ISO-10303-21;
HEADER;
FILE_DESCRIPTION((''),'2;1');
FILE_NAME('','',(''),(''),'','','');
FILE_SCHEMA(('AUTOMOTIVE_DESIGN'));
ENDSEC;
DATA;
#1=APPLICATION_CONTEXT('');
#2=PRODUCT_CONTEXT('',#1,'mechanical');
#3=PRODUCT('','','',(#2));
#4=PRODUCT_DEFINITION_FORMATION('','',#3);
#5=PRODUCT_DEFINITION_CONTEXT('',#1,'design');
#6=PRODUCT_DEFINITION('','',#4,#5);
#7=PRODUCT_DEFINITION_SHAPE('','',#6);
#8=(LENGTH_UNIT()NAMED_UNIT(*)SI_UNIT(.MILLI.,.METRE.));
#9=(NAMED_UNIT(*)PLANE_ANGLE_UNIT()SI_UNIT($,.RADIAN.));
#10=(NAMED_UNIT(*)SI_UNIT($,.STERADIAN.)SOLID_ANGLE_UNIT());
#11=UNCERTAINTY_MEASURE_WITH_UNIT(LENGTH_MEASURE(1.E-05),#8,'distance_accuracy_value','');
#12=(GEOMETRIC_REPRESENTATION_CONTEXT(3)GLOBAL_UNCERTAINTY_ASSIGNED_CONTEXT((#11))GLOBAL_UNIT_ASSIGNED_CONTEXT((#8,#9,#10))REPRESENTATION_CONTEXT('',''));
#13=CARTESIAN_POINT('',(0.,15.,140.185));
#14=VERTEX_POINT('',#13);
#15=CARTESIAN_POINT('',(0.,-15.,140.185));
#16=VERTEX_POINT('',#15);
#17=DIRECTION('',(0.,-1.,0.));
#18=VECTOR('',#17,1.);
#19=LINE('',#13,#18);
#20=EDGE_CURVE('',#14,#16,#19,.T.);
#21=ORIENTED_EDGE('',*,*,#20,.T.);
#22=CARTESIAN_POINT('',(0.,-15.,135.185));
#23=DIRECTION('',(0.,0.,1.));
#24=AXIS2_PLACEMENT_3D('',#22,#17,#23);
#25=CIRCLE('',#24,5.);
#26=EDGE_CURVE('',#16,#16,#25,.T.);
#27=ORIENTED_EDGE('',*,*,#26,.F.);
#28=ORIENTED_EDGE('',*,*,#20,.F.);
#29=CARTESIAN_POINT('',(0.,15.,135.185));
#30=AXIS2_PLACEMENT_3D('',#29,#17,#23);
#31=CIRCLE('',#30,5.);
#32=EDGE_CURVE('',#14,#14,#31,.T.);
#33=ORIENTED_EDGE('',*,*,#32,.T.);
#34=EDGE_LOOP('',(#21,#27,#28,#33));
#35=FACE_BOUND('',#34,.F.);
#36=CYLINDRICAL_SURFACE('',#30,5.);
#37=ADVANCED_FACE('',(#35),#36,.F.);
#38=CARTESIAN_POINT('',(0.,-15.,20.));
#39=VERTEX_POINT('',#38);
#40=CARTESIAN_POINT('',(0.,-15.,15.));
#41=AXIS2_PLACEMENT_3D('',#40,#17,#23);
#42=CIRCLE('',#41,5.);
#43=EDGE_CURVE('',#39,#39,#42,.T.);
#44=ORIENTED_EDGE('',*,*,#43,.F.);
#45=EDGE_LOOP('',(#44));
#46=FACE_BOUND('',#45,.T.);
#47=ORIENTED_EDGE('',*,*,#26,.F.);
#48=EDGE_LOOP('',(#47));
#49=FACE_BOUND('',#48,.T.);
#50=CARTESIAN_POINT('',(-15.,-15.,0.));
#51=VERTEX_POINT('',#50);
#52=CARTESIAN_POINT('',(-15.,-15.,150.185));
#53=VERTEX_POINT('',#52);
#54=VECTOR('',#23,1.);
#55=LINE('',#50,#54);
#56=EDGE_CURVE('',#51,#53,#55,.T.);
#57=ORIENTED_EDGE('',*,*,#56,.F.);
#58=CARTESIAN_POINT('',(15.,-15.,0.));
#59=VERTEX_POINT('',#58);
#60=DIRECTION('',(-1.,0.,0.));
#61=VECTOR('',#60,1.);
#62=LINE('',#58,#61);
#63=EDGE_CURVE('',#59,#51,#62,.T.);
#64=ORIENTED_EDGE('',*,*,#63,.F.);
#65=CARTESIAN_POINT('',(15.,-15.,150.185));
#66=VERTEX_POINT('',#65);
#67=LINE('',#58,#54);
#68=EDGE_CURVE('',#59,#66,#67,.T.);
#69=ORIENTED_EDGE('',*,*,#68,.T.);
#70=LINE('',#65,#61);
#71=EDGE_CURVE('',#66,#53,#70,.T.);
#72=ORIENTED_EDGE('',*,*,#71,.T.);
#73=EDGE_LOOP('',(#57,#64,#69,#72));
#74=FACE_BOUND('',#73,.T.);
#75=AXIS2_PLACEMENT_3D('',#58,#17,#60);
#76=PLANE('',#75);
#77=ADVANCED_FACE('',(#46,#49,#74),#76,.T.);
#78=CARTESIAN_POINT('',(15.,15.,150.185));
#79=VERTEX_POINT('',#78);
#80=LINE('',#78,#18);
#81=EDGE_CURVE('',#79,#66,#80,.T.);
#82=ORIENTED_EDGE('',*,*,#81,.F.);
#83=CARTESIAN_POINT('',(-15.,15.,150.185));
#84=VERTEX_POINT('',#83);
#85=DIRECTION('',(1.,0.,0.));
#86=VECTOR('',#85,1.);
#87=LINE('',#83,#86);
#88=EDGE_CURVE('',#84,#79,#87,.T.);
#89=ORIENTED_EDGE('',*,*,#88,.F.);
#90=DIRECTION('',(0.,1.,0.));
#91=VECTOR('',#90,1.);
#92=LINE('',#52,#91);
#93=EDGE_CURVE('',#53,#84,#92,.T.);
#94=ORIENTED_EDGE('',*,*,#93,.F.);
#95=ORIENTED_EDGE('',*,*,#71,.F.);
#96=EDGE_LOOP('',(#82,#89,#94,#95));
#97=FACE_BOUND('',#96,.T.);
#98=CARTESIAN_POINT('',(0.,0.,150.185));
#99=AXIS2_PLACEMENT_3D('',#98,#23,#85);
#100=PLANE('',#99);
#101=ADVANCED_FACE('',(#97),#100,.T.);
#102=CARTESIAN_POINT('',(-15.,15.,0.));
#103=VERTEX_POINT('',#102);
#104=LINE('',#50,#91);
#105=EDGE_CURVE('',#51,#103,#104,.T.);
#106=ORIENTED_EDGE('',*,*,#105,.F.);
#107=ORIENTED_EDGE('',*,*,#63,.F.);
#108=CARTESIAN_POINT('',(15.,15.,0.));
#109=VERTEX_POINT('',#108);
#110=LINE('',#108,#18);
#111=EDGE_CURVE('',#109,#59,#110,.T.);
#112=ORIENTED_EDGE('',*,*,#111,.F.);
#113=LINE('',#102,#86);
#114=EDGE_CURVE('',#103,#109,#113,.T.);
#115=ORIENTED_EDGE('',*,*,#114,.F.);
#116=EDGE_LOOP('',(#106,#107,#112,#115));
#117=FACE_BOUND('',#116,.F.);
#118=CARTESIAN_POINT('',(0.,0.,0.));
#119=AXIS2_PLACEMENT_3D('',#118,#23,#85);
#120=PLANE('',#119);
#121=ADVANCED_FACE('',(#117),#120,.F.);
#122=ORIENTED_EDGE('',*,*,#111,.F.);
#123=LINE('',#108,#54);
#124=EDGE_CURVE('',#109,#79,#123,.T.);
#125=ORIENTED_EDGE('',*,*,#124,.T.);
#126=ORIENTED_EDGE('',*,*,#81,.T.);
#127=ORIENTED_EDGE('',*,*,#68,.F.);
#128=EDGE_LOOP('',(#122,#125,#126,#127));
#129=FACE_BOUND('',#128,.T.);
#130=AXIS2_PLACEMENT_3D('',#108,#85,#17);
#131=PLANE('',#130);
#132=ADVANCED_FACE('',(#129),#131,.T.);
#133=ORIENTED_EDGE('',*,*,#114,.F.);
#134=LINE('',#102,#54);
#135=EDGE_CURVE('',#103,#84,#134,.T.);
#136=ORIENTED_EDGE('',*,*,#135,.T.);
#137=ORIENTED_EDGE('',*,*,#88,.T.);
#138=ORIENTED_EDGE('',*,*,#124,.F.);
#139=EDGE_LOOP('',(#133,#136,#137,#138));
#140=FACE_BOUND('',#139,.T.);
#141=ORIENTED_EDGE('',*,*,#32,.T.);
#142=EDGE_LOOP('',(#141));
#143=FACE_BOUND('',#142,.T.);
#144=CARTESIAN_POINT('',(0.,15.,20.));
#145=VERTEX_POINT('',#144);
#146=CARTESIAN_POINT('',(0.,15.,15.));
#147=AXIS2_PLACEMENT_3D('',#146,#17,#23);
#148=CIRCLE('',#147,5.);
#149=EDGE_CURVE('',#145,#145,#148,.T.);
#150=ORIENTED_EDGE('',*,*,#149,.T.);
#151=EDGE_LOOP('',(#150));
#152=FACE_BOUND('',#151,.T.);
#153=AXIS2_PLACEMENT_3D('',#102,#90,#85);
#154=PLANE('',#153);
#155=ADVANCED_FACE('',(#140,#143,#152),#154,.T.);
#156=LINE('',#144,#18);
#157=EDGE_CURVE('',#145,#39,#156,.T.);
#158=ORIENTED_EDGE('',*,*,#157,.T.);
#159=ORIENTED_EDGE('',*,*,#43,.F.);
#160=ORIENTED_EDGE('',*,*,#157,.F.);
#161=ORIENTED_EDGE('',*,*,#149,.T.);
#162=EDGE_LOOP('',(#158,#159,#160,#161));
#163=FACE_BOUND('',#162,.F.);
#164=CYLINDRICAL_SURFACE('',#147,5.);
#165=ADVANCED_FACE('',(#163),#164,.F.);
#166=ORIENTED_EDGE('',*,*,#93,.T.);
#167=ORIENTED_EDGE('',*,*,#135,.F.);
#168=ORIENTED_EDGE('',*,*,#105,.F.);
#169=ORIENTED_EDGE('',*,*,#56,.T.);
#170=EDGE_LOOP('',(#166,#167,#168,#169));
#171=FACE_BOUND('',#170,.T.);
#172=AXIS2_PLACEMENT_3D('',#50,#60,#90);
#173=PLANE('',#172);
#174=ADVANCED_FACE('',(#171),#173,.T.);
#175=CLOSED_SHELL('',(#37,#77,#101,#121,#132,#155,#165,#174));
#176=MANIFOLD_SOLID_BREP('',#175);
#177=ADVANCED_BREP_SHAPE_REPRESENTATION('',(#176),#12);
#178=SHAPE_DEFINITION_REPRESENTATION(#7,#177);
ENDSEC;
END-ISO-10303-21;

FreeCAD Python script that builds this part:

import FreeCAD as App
import Part
import Sketcher

V = App.Vector


def add_polygon(sketch, points):
    """Adds a closed chain of lines whose ends are joined by coincident constraints."""
    first, n = sketch.GeometryCount, len(points)
    for a, b in zip(points, points[1:] + points[:1]):
        sketch.addGeometry(Part.LineSegment(App.Vector(*a, 0), App.Vector(*b, 0)), False)
    for i in range(n):
        sketch.addConstraint(Sketcher.Constraint("Coincident", first + i, 2, first + (i + 1) % n, 1))

doc = App.newDocument("Part")
params = doc.addObject("Spreadsheet::Sheet", "Params")
for row, (alias, value) in enumerate([
    ("sketch1_width", "30 mm"),
    ("pad1_length", "150.185 mm"),
    ("sketch2_diameter", "10 mm"),
    ("hole_diameter", "10 mm"),
], start=1):
    params.set(f"A{row}", alias)
    params.set(f"B{row}", "=" + value)
    params.setAlias(f"B{row}", alias)

body = doc.addObject("PartDesign::Body", "Body")

sketch1 = body.newObject("Sketcher::SketchObject", "Sketch")
sketch1.AttachmentSupport = (doc.getObject("XY_Plane"), [""])
sketch1.MapMode = "FlatFace"
add_polygon(sketch1, [(15, 15), (-15, 15), (-15, -15), (15, -15)])
sketch1.addConstraint([
    Sketcher.Constraint("Horizontal", 0),
    Sketcher.Constraint("Vertical", 1),
    Sketcher.Constraint("Horizontal", 2),
    Sketcher.Constraint("Vertical", 3),
    Sketcher.Constraint("Symmetric", 0, 2, 2, 2, -1, 1),
    Sketcher.Constraint("Equal", 2, 1),
    Sketcher.Constraint("DistanceX", 0, 2, 0, 1, 30.0),
])
sketch1.setExpression("Constraints[10]", "Params.sketch1_width")
pad1 = body.newObject("PartDesign::Pad", "Pad")
pad1.Profile = sketch1
pad1.setExpression("Length", "Params.pad1_length")

sketch2 = body.newObject("Sketcher::SketchObject", "Sketch001")
sketch2.AttachmentSupport = (doc.getObject("XZ_Plane"), [""])
sketch2.MapMode = "FlatFace"
sketch2.AttachmentOffset = App.Placement(V(0, 0, -15), App.Rotation())
sketch2.addGeometry([
    Part.Circle(V(0, 135, 0), V(0, 0, 1), 5),
    Part.Circle(V(0, 15, 0), V(0, 0, 1), 5),
], False)
sketch2.addConstraint([
    Sketcher.Constraint("Equal", 0, 1),
    Sketcher.Constraint("PointOnObject", 0, 3, -2),
    Sketcher.Constraint("PointOnObject", 1, 3, -2),
    Sketcher.Constraint("Diameter", 0, 10.0),
    Sketcher.Constraint("DistanceY", -1, 1, 1, 3, 15.0),
    Sketcher.Constraint("DistanceY", -1, 1, 0, 3, 135.185),
])
sketch2.setExpression("Constraints[3]", "Params.sketch2_diameter")
doc.recompute()
hole = body.newObject("PartDesign::Hole", "Hole")
hole.Profile = sketch2
hole.ThreadType = "None"
hole.setExpression("Diameter", "Params.hole_diameter")
hole.DepthType = "ThroughAll"
hole.Reversed = True

doc.recompute()
